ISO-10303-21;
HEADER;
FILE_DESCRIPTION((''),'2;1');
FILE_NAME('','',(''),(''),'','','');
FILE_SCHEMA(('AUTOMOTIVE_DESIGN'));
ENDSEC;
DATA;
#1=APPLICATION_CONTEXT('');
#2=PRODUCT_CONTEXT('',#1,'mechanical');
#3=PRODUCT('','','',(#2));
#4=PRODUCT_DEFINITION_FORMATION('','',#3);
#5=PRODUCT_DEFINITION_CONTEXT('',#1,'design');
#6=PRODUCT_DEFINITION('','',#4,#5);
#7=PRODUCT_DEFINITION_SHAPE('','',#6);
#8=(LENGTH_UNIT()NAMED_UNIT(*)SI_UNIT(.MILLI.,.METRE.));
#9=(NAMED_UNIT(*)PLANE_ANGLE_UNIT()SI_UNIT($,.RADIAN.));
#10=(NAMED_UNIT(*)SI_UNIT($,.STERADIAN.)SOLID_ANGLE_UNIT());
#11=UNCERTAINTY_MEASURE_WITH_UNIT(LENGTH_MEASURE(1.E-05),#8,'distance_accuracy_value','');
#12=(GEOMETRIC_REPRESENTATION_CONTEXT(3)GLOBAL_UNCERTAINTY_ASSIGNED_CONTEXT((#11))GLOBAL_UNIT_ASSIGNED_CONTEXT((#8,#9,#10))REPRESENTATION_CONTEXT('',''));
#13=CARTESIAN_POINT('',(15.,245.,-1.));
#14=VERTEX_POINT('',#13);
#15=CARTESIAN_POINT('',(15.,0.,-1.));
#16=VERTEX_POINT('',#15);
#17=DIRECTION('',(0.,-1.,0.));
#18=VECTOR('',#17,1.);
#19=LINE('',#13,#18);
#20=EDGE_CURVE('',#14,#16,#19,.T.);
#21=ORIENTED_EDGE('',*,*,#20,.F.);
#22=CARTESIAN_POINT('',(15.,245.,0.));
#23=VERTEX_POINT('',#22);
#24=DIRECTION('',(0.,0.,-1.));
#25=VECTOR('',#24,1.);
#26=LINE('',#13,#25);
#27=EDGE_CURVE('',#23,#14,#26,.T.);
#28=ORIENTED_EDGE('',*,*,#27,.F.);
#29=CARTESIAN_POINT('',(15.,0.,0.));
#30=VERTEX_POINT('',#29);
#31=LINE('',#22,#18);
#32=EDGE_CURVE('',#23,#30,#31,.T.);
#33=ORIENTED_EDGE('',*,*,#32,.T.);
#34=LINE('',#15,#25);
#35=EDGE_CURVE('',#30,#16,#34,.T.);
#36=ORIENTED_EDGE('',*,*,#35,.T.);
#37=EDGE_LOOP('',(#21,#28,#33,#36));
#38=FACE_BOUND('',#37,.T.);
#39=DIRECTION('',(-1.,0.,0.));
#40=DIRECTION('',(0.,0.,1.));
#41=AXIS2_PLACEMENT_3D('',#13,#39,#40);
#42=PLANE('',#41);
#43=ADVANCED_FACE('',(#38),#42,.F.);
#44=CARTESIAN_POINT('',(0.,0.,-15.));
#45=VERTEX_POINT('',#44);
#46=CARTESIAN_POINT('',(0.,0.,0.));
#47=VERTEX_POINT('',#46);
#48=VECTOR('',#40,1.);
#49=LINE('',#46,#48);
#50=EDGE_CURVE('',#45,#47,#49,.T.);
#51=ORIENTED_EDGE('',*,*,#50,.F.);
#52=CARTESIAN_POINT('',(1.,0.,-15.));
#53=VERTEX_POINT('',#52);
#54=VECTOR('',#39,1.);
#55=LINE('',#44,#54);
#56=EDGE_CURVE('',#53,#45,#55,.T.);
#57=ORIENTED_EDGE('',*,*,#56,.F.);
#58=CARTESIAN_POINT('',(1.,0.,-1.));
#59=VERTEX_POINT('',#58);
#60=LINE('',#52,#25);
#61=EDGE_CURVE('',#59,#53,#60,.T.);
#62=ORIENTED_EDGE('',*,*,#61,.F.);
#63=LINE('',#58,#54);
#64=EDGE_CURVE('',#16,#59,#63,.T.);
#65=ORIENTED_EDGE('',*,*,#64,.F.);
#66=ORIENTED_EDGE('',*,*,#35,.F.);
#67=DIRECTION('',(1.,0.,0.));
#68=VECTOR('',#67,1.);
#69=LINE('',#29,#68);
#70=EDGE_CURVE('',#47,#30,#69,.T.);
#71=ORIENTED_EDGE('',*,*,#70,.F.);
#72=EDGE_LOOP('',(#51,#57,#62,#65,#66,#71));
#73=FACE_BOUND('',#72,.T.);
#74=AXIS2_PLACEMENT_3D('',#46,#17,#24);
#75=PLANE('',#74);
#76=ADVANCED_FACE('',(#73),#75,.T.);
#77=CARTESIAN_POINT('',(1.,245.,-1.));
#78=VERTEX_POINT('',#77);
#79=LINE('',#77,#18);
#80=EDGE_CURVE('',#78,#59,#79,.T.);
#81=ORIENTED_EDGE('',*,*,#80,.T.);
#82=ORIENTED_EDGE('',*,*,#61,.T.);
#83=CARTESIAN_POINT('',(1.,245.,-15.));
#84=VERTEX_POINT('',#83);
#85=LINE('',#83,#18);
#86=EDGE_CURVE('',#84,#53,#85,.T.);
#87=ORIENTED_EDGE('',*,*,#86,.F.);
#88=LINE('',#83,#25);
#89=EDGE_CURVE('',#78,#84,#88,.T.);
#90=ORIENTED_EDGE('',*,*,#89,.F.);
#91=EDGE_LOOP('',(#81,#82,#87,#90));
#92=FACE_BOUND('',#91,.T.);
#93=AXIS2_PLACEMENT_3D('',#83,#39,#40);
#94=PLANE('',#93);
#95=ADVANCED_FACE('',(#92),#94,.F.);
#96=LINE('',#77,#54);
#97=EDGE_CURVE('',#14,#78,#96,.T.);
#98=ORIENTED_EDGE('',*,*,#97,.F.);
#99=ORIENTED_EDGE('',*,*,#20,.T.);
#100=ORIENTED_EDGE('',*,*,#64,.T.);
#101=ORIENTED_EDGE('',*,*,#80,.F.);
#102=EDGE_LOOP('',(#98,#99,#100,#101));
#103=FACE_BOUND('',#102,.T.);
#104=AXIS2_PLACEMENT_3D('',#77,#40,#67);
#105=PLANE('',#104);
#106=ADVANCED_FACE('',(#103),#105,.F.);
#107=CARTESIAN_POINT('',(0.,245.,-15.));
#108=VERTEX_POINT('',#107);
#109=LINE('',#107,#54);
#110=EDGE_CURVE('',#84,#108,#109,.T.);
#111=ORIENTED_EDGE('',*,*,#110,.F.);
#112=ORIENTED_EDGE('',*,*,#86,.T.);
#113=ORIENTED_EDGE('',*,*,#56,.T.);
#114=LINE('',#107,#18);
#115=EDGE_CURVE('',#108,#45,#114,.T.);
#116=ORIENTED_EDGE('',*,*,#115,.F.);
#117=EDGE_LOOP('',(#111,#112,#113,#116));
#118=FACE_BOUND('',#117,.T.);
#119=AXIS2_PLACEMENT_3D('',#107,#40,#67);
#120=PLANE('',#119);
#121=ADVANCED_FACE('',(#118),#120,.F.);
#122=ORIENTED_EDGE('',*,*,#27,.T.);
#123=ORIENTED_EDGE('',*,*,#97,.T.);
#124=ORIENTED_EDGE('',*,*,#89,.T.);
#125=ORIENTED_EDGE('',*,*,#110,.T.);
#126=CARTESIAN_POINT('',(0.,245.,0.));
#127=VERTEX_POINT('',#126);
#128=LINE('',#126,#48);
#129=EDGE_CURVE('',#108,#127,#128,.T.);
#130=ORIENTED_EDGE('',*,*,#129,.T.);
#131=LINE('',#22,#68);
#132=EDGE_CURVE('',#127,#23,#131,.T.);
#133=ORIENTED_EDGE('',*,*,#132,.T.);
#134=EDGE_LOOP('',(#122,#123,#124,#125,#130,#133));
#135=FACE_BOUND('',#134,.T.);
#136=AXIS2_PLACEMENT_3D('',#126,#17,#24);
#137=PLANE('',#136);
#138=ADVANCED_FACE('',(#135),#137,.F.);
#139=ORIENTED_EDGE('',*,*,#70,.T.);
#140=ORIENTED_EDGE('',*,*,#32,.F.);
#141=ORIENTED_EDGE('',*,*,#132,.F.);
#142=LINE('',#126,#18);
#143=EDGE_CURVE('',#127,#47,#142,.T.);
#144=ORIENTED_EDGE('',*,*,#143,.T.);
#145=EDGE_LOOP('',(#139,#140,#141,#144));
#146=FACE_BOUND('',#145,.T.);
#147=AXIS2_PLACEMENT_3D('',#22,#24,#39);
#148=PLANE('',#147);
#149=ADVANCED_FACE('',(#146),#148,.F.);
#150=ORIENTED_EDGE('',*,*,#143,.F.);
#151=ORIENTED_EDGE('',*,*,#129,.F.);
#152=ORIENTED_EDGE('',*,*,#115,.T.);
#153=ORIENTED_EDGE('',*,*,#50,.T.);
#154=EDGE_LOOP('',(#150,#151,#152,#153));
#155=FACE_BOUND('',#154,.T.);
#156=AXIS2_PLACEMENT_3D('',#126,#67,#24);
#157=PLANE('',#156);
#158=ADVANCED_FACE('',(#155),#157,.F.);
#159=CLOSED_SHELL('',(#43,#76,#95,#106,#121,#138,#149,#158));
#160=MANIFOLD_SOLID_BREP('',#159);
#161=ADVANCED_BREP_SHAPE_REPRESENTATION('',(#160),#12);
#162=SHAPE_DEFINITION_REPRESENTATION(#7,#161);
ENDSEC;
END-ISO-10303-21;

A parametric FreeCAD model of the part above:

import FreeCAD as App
import Part
import Sketcher

V = App.Vector
Q = App.Units.Quantity


def add_polygon(sketch, points):
    """Adds a closed chain of lines whose ends are joined by coincident constraints."""
    first, n = sketch.GeometryCount, len(points)
    for a, b in zip(points, points[1:] + points[:1]):
        sketch.addGeometry(Part.LineSegment(App.Vector(*a, 0), App.Vector(*b, 0)), False)
    for i in range(n):
        sketch.addConstraint(Sketcher.Constraint("Coincident", first + i, 2, first + (i + 1) % n, 1))

doc = App.newDocument("Part")
body = doc.addObject("PartDesign::Body", "Body")

sketch1 = body.newObject("Sketcher::SketchObject", "Sketch")
sketch1.AttachmentSupport = (doc.getObject("XZ_Plane"), [""])
sketch1.MapMode = "FlatFace"
add_polygon(sketch1, [(0, -15), (0, 0), (15, 0), (15, -1), (1, -1), (1, -15)])
sketch1.addConstraint(Sketcher.Constraint("Vertical", 0))
sketch1.addConstraint(Sketcher.Constraint("Horizontal", 1))
sketch1.addConstraint(Sketcher.Constraint("Vertical", 2))
sketch1.addConstraint(Sketcher.Constraint("Horizontal", 3))
sketch1.addConstraint(Sketcher.Constraint("Vertical", 4))
sketch1.addConstraint(Sketcher.Constraint("Horizontal", 5))
sketch1.addConstraint(Sketcher.Constraint("Coincident", 0, 2, -1, 1))
sketch1.addConstraint(Sketcher.Constraint("Equal", 1, 0))
sketch1.addConstraint(Sketcher.Constraint("Equal", 5, 2))
sketch1.addConstraint(Sketcher.Constraint("DistanceX", 1, 1, 1, 2, Q("15 mm")))
sketch1.addConstraint(Sketcher.Constraint("DistanceX", 3, 2, 3, 1, Q("14 mm")))
pad1 = body.newObject("PartDesign::Pad", "Pad")
pad1.Profile = sketch1
pad1.Length = 245
pad1.Reversed = True

doc.recompute()
